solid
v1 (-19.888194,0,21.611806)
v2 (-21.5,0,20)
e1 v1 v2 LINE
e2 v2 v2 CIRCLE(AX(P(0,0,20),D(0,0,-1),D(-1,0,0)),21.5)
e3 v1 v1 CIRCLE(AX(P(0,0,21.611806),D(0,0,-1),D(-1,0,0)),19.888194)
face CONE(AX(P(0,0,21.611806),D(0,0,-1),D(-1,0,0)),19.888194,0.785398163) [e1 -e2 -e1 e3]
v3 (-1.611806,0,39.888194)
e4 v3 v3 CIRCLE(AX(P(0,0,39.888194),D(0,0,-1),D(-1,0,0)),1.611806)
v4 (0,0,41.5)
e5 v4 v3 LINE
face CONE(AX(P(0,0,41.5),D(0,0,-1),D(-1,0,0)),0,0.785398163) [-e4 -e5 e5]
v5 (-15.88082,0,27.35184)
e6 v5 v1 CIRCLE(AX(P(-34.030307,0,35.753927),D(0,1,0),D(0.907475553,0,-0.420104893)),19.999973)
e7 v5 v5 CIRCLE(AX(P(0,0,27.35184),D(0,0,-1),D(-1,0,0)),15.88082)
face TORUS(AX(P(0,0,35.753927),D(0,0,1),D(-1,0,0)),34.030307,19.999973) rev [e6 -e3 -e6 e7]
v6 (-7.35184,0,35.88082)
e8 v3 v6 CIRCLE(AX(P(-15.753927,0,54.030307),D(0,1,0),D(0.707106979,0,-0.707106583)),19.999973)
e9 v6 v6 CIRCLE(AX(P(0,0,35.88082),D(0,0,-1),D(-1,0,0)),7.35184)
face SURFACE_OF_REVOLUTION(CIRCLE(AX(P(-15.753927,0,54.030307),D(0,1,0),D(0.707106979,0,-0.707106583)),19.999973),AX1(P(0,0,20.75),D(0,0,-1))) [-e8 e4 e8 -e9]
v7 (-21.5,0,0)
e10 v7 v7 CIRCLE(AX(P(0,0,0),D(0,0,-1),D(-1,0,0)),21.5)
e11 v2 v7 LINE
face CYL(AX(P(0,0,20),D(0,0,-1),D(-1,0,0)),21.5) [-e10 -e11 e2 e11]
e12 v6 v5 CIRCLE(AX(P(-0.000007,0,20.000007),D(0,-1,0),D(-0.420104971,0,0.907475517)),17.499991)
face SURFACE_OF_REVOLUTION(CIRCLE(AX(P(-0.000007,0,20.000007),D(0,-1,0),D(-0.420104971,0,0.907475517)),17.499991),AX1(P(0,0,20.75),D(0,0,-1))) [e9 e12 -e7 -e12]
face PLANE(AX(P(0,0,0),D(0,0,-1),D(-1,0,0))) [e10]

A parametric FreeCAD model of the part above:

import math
import FreeCAD as App
import Part
import Sketcher
from FreeCAD import Vector
Q = App.Units.Quantity

doc = App.newDocument("Part")
params = doc.addObject("Spreadsheet::Sheet", "Params")
for row, (alias, value) in enumerate([
    ("sketch1_height", "20 mm"),
    ("sketch1_width", "21.5 mm"),
    ("sketch1_height2", "41.5 mm"),
    ("revolution_angle", "360 deg"),
], start=1):
    params.set(f"A{row}", alias)
    params.set(f"B{row}", "=" + value)
    params.setAlias(f"B{row}", alias)

body = doc.addObject("PartDesign::Body", "Body")

sketch1 = body.newObject("Sketcher::SketchObject", "Sketch")
sketch1.AttachmentSupport = (doc.getObject("XZ_Plane"), [""])
sketch1.MapMode = "FlatFace"
sketch1.addGeometry([
    Part.LineSegment(Vector(-21.5, 20, 0), Vector(-21.5, 0, 0)),
    Part.LineSegment(Vector(-21.5, 0, 0), Vector(0, 0, 0)),
    Part.LineSegment(Vector(0, 0, 0), Vector(0, 41.5, 0)),
    Part.LineSegment(Vector(0, 41.5, 0), Vector(-1.6, 39.9, 0)),
    Part.ArcOfCircle(Part.Circle(Vector(-15.8, 54, 0), Vector(0, 0, 1), 20), math.radians(-65), math.radians(-45)),
    Part.ArcOfCircle(Part.Circle(Vector(0, 20, 0), Vector(0, 0, 1), 17.5), math.radians(115), math.radians(155)),
    Part.ArcOfCircle(Part.Circle(Vector(-34, 35.8, 0), Vector(0, 0, 1), 20), math.radians(-45), math.radians(-25)),
    Part.LineSegment(Vector(-19.9, 21.6, 0), Vector(-21.5, 20, 0)),
], False)
sketch1.addConstraint([
    Sketcher.Constraint("Coincident", 0, 2, 1, 1),
    Sketcher.Constraint("Coincident", 1, 2, 2, 1),
    Sketcher.Constraint("Coincident", 2, 2, 3, 1),
    Sketcher.Constraint("Tangent", 3, 2, 4, 2),
    Sketcher.Constraint("Tangent", 4, 1, 5, 1),
    Sketcher.Constraint("Tangent", 5, 2, 6, 2),
    Sketcher.Constraint("Tangent", 6, 1, 7, 1),
    Sketcher.Constraint("Coincident", 7, 2, 0, 1),
    Sketcher.Constraint("Vertical", 0),
    Sketcher.Constraint("Horizontal", 1),
    Sketcher.Constraint("Vertical", 2),
    Sketcher.Constraint("Coincident", 1, 2, -1, 1),
    Sketcher.Constraint("Equal", 4, 6),
    Sketcher.Constraint("Parallel", 3, 7),
    Sketcher.Constraint("Equal", 3, 7),
    Sketcher.Constraint("DistanceY", 0, 2, 0, 1, 20.0),
    Sketcher.Constraint("Angle", 3, Q("-135 deg")),
    Sketcher.Constraint("DistanceX", 1, 1, 1, 2, 21.5),
    Sketcher.Constraint("DistanceY", 2, 1, 2, 2, 41.5),
    Sketcher.Constraint("Radius", 5, 17.499991),
    Sketcher.Constraint("Radius", 4, 19.999973),
    Sketcher.Constraint("DistanceY", 5, 3, 4, 3, 34.0303),
])
sketch1.setExpression("Constraints[15]", "Params.sketch1_height")
sketch1.setExpression("Constraints[17]", "Params.sketch1_width")
sketch1.setExpression("Constraints[18]", "Params.sketch1_height2")
revolution = body.newObject("PartDesign::Revolution", "Revolution")
revolution.Profile = sketch1
revolution.ReferenceAxis = (sketch1, ["V_Axis"])
revolution.setExpression("Angle", "Params.revolution_angle")

doc.recompute()
